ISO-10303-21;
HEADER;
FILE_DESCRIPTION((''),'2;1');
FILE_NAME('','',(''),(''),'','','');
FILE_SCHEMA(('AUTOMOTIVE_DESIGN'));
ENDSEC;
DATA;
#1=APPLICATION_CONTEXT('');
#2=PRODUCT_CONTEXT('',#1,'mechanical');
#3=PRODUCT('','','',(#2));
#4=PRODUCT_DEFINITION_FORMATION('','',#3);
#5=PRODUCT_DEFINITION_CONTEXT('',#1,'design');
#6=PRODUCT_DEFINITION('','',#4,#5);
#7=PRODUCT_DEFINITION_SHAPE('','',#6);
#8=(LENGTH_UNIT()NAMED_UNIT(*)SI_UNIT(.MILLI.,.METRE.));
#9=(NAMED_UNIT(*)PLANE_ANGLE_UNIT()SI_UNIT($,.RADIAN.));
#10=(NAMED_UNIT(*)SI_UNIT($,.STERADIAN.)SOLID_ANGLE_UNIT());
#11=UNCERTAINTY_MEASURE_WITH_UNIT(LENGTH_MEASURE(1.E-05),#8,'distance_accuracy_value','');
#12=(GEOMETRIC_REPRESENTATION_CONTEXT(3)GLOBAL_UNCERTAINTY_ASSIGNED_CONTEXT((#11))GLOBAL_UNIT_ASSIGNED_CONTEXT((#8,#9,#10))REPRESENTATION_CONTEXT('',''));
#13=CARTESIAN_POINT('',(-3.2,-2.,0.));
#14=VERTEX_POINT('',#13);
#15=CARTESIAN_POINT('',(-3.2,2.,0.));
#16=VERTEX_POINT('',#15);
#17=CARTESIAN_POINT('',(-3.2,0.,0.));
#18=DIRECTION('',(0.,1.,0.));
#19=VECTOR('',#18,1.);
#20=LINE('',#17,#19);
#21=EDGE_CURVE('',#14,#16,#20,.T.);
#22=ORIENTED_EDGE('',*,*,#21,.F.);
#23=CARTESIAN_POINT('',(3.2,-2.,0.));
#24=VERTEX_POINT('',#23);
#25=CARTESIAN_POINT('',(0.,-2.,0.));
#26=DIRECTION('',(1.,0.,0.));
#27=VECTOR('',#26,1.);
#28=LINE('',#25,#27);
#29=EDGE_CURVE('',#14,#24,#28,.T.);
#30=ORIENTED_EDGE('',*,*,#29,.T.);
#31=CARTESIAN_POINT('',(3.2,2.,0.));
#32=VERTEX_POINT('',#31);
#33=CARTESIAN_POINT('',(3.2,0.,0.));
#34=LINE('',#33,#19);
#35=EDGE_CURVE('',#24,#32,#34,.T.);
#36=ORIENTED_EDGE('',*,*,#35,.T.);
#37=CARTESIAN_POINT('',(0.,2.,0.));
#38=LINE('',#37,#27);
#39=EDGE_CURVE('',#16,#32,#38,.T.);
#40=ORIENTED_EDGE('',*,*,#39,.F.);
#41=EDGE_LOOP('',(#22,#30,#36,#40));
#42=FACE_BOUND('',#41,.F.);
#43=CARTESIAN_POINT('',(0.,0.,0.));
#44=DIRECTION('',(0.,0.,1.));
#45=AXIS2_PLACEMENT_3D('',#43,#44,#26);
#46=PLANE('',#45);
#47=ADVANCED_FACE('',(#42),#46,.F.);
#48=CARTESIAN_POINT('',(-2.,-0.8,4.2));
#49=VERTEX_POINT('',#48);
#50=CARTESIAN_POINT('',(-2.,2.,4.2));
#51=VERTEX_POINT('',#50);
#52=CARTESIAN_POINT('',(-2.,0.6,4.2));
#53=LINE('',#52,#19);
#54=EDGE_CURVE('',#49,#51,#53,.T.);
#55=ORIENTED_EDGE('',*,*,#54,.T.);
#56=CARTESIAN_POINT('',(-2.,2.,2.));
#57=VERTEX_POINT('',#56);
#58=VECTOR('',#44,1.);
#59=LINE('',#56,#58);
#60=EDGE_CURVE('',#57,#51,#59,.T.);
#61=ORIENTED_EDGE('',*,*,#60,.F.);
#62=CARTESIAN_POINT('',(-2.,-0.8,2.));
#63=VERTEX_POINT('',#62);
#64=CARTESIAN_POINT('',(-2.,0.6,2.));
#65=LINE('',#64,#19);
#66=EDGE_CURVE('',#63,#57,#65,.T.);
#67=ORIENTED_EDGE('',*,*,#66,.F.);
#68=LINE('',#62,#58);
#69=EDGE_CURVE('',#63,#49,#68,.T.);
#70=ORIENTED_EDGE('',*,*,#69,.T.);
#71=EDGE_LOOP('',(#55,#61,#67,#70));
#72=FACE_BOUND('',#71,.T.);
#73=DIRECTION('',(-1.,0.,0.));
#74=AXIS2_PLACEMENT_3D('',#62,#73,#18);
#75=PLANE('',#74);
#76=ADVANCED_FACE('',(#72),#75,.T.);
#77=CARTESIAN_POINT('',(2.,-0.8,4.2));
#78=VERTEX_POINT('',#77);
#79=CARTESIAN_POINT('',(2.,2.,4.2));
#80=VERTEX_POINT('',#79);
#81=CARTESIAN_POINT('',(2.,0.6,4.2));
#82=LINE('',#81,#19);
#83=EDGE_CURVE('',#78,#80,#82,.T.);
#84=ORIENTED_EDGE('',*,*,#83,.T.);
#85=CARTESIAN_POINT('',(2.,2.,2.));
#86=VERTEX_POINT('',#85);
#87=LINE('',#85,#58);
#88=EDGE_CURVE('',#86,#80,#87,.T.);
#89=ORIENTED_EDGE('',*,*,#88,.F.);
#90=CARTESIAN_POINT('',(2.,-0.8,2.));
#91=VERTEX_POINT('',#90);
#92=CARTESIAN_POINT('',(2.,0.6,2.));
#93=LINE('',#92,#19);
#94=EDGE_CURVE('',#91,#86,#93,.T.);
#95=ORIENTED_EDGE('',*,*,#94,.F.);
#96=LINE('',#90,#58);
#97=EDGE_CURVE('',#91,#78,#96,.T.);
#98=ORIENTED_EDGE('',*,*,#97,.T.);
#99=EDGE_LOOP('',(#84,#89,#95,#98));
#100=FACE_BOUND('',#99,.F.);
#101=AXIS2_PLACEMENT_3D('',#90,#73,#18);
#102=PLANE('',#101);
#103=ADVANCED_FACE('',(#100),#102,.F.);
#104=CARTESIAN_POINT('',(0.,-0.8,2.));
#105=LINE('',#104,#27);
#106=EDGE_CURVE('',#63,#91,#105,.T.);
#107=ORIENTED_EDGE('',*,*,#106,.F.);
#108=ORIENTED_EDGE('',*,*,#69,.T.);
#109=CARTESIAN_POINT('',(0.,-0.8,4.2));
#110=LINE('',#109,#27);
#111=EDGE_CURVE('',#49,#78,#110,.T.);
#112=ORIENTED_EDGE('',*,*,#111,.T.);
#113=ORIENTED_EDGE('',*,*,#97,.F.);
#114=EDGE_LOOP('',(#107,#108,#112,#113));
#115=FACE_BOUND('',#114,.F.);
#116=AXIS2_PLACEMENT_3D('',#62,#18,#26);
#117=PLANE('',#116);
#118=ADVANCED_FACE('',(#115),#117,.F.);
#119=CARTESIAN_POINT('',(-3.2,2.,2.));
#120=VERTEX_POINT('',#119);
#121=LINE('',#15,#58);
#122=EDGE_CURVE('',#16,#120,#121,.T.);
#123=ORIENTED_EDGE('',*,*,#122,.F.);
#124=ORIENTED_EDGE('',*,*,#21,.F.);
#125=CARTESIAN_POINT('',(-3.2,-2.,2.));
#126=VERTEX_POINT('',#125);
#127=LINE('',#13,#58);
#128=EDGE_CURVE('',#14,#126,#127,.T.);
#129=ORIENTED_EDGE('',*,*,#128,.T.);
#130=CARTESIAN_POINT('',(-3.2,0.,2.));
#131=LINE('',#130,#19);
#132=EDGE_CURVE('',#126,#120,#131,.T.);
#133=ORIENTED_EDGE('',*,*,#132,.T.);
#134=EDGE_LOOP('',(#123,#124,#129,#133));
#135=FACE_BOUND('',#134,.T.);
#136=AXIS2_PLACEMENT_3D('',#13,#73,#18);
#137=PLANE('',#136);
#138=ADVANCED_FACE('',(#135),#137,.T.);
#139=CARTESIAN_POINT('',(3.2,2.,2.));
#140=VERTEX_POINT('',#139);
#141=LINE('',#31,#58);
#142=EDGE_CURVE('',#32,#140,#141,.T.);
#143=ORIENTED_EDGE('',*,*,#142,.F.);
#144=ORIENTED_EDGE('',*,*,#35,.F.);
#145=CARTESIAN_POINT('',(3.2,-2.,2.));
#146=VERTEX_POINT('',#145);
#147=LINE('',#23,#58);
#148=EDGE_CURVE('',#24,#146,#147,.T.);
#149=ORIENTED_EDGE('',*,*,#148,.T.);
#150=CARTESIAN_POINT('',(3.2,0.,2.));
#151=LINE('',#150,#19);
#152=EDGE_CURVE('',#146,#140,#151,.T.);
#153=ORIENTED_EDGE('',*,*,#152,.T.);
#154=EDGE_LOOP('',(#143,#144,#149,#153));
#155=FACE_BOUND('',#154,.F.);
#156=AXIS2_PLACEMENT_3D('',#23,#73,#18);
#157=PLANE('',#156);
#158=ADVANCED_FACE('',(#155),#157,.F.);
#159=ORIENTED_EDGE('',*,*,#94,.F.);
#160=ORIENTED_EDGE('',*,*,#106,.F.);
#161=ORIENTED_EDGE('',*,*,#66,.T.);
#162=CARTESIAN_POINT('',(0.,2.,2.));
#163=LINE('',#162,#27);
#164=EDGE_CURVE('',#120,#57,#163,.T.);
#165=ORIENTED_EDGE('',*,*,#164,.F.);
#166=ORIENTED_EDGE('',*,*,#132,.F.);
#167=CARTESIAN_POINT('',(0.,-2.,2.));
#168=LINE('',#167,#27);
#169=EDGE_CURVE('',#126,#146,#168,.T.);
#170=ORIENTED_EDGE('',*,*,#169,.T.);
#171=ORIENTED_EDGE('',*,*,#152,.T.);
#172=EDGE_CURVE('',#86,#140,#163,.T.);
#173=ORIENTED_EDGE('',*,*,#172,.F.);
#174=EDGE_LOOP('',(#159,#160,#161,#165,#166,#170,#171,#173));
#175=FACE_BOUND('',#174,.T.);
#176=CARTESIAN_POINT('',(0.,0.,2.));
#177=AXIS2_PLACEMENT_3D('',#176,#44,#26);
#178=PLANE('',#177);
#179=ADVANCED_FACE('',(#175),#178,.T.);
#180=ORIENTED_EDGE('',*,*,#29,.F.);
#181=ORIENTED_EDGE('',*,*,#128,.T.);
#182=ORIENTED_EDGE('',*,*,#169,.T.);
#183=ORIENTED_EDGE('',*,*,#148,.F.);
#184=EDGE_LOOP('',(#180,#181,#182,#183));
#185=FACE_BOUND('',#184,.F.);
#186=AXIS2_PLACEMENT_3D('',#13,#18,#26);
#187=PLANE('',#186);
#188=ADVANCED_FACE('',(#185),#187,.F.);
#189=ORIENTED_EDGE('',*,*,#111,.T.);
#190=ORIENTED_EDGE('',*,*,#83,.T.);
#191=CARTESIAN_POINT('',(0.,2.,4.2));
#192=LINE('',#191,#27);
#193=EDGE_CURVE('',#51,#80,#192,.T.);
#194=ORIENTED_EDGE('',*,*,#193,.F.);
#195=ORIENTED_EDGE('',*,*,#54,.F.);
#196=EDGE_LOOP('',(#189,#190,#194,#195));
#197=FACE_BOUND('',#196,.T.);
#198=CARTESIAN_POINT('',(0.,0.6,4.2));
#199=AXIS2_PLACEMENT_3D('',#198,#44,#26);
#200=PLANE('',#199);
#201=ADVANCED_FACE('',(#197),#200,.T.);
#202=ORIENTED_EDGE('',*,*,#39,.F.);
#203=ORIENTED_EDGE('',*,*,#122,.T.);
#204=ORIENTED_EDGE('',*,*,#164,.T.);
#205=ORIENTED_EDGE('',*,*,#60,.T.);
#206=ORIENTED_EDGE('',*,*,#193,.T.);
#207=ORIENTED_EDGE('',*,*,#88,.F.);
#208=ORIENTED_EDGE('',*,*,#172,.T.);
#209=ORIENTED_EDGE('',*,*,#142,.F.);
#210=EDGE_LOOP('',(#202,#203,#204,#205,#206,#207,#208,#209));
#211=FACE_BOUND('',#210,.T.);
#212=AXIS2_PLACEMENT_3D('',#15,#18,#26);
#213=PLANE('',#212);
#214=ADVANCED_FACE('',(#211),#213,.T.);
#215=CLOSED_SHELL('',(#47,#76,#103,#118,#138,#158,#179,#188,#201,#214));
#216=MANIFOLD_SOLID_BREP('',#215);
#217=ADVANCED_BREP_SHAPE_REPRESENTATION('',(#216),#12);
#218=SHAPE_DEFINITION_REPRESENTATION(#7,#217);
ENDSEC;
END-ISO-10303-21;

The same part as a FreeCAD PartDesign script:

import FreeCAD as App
import Part
import Sketcher

V = App.Vector

doc = App.newDocument("Part")
body = doc.addObject("PartDesign::Body", "Body")

# Sketch on XY plane
sketch1 = doc.addObject("Sketcher::SketchObject", "Sketch")
body.addObject(sketch1)
sketch1.AttachmentSupport = (doc.XY_Plane, [""])
sketch1.MapMode = "FlatFace"
sketch1.addGeometry([
    Part.LineSegment(V(-3.2, 2, 0), V(-3.2, -2, 0)),
    Part.LineSegment(V(-3.2, -2, 0), V(3.2, -2, 0)),
    Part.LineSegment(V(3.2, -2, 0), V(3.2, 2, 0)),
    Part.LineSegment(V(3.2, 2, 0), V(-3.2, 2, 0)),
], False)
sketch1.addConstraint([
    Sketcher.Constraint("Coincident", 0, 2, 1, 1),
    Sketcher.Constraint("Coincident", 1, 2, 2, 1),
    Sketcher.Constraint("Coincident", 2, 2, 3, 1),
    Sketcher.Constraint("Coincident", 3, 2, 0, 1),
    Sketcher.Constraint("Vertical", 0),
    Sketcher.Constraint("Horizontal", 1),
    Sketcher.Constraint("Vertical", 2),
    Sketcher.Constraint("Horizontal", 3),
    Sketcher.Constraint("Symmetric", 0, 2, 2, 2, -1, 1),
    Sketcher.Constraint("DistanceY", 0, 2, 0, 1, 4.0),
    Sketcher.Constraint("DistanceX", 1, 1, 1, 2, 6.4),
])
pad1 = doc.addObject("PartDesign::Pad", "Pad")
body.addObject(pad1)
pad1.Profile = sketch1
pad1.Length = 2

# Sketch on XY plane
sketch2 = doc.addObject("Sketcher::SketchObject", "Sketch001")
body.addObject(sketch2)
sketch2.AttachmentSupport = (doc.XY_Plane, [""])
sketch2.MapMode = "FlatFace"
sketch2.AttachmentOffset = App.Placement(V(0, 0, 2), App.Rotation())
sketch2.addGeometry([
    Part.LineSegment(V(-2, 2, 0), V(-2, -0.8, 0)),
    Part.LineSegment(V(-2, -0.8, 0), V(2, -0.8, 0)),
    Part.LineSegment(V(2, -0.8, 0), V(2, 2, 0)),
    Part.LineSegment(V(2, 2, 0), V(-2, 2, 0)),
], False)
sketch2.addConstraint([
    Sketcher.Constraint("Coincident", 0, 2, 1, 1),
    Sketcher.Constraint("Coincident", 1, 2, 2, 1),
    Sketcher.Constraint("Coincident", 2, 2, 3, 1),
    Sketcher.Constraint("Coincident", 3, 2, 0, 1),
    Sketcher.Constraint("Vertical", 0),
    Sketcher.Constraint("Horizontal", 1),
    Sketcher.Constraint("Vertical", 2),
    Sketcher.Constraint("Horizontal", 3),
    Sketcher.Constraint("DistanceX", 1, 1, 1, 2, 4.0),
    Sketcher.Constraint("DistanceY", 0, 2, 0, 1, 2.8),
    Sketcher.Constraint("DistanceX", 0, 2, -1, 1, 2.0),
    Sketcher.Constraint("DistanceY", -1, 1, 2, 2, 2.0),
])
pad2 = doc.addObject("PartDesign::Pad", "Pad001")
body.addObject(pad2)
pad2.Profile = sketch2
pad2.Length = 2.2

doc.recompute()
